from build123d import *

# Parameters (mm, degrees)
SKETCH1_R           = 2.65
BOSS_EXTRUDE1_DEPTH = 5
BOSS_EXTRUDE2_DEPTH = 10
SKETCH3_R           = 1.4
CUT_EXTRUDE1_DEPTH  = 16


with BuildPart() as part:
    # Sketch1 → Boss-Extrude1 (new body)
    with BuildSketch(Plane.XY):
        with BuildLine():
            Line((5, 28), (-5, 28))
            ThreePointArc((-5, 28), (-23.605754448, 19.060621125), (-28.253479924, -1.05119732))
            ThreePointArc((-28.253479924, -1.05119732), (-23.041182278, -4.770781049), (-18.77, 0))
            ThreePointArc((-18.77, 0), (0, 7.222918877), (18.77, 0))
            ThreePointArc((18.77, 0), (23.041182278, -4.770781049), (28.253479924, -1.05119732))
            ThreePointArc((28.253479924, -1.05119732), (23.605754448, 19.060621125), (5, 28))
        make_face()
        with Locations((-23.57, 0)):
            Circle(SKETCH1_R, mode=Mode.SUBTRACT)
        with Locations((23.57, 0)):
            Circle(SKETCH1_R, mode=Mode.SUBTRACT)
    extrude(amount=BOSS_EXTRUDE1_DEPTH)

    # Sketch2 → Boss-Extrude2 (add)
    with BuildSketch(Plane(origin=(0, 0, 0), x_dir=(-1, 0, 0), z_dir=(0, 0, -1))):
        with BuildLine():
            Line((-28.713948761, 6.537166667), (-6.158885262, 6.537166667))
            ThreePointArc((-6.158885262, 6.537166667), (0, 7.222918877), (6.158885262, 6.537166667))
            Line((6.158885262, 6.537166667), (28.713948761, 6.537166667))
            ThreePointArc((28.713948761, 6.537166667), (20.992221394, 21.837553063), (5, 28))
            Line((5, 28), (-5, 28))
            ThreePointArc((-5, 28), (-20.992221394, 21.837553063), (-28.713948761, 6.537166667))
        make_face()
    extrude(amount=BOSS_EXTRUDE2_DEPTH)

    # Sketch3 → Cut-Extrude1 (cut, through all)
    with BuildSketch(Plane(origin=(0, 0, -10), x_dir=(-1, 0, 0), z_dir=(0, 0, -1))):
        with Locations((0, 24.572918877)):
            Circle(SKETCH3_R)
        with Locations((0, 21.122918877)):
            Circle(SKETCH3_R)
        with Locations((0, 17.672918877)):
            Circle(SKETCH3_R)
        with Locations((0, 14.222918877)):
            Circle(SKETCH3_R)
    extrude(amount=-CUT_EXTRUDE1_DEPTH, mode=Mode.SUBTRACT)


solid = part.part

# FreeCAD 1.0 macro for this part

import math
import FreeCAD as App
import Part
import Sketcher
from FreeCAD import Vector

doc = App.newDocument("Part")
params = doc.addObject("Spreadsheet::Sheet", "Params")
for row, (alias, value) in enumerate([
    ("sketch1_radius", "28 mm"),
    ("sketch1_diameter", "5.3 mm"),
    ("sketch1_radius2", "4.8 mm"),
    ("sketch1_width", "10 mm"),
    ("pad1_length", "5 mm"),
    ("sketch2_radius", "28 mm"),
    ("sketch2_width", "10 mm"),
    ("pad2_length", "10 mm"),
    ("sketch3_diameter", "2.8 mm"),
], start=1):
    params.set(f"A{row}", alias)
    params.set(f"B{row}", "=" + value)
    params.setAlias(f"B{row}", alias)

body = doc.addObject("PartDesign::Body", "Body")

sketch1 = body.newObject("Sketcher::SketchObject", "Sketch")
sketch1.AttachmentSupport = (doc.getObject("XY_Plane"), [""])
sketch1.MapMode = "FlatFace"
sketch1.addGeometry([
    Part.LineSegment(Vector(5, 28, 0), Vector(-5, 28, 0)),
    Part.ArcOfCircle(Part.Circle(Vector(-5, 4.2, 0), Vector(0, 0, 1), 23.8), math.radians(90), math.radians(193)),
    Part.ArcOfCircle(Part.Circle(Vector(-23.6, 0, 0), Vector(0, 0, 1), 4.8), math.radians(-167), math.radians(0)),
    Part.ArcOfCircle(Part.Circle(Vector(0, -20.8, 0), Vector(0, 0, 1), 28), math.radians(48), math.radians(132)),
    Part.ArcOfCircle(Part.Circle(Vector(23.6, 0, 0), Vector(0, 0, 1), 4.8), math.radians(180), math.radians(347)),
    Part.ArcOfCircle(Part.Circle(Vector(5, 4.2, 0), Vector(0, 0, 1), 23.8), math.radians(-13), math.radians(90)),
    Part.Circle(Vector(-23.6, 0, 0), Vector(0, 0, 1), 2.6),
    Part.Circle(Vector(23.6, 0, 0), Vector(0, 0, 1), 2.6),
], False)
sketch1.addConstraint([
    Sketcher.Constraint("Tangent", 0, 2, 1, 1),
    Sketcher.Constraint("Tangent", 1, 2, 2, 1),
    Sketcher.Constraint("Coincident", 2, 2, 3, 2),
    Sketcher.Constraint("Coincident", 3, 1, 4, 1),
    Sketcher.Constraint("Tangent", 4, 2, 5, 1),
    Sketcher.Constraint("Tangent", 5, 2, 0, 1),
    Sketcher.Constraint("Horizontal", 0),
    Sketcher.Constraint("Coincident", 6, 3, 2, 3),
    Sketcher.Constraint("Coincident", 7, 3, 4, 3),
    Sketcher.Constraint("Equal", 2, 4),
    Sketcher.Constraint("Equal", 1, 5),
    Sketcher.Constraint("Equal", 6, 7),
    Sketcher.Constraint("Symmetric", 2, 3, 4, 3, -1, 1),
    Sketcher.Constraint("PointOnObject", 2, 3, -1),
    Sketcher.Constraint("PointOnObject", 3, 3, -2),
    Sketcher.Constraint("PointOnObject", 2, 2, -1),
    Sketcher.Constraint("Radius", 3, 28.0),
    Sketcher.Constraint("Diameter", 6, 5.3),
    Sketcher.Constraint("Radius", 2, 4.8),
    Sketcher.Constraint("DistanceX", 0, 2, 0, 1, 10.0),
    Sketcher.Constraint("DistanceY", -1, 1, 0, 2, 28.0),
    Sketcher.Constraint("DistanceX", 2, 3, -1, 1, 23.57),
])
sketch1.setExpression("Constraints[16]", "Params.sketch1_radius")
sketch1.setExpression("Constraints[17]", "Params.sketch1_diameter")
sketch1.setExpression("Constraints[18]", "Params.sketch1_radius2")
sketch1.setExpression("Constraints[19]", "Params.sketch1_width")
pad1 = body.newObject("PartDesign::Pad", "Pad")
pad1.Profile = sketch1
pad1.setExpression("Length", "Params.pad1_length")

sketch2 = body.newObject("Sketcher::SketchObject", "Sketch001")
sketch2.AttachmentSupport = (doc.getObject("XY_Plane"), [""])
sketch2.MapMode = "FlatFace"
sketch2.addGeometry([
    Part.LineSegment(Vector(29, 7, 0), Vector(6, 7, 0)),
    Part.ArcOfCircle(Part.Circle(Vector(0, -21, 0), Vector(0, 0, 1), 28), math.radians(77), math.radians(103)),
    Part.LineSegment(Vector(-6, 7, 0), Vector(-29, 7, 0)),
    Part.ArcOfCircle(Part.Circle(Vector(-5, 4, 0), Vector(0, 0, 1), 24), math.radians(90), math.radians(174)),
    Part.LineSegment(Vector(-5, 28, 0), Vector(5, 28, 0)),
    Part.ArcOfCircle(Part.Circle(Vector(5, 4, 0), Vector(0, 0, 1), 24), math.radians(6), math.radians(90)),
], False)
sketch2.addConstraint([
    Sketcher.Constraint("Coincident", 0, 2, 1, 1),
    Sketcher.Constraint("Coincident", 1, 2, 2, 1),
    Sketcher.Constraint("Coincident", 2, 2, 3, 2),
    Sketcher.Constraint("Tangent", 3, 1, 4, 1),
    Sketcher.Constraint("Tangent", 4, 2, 5, 2),
    Sketcher.Constraint("Coincident", 5, 1, 0, 1),
    Sketcher.Constraint("Horizontal", 0),
    Sketcher.Constraint("Horizontal", 2),
    Sketcher.Constraint("Horizontal", 4),
    Sketcher.Constraint("Equal", 3, 5),
    Sketcher.Constraint("Symmetric", 0, 2, 1, 2, -2),
    Sketcher.Constraint("Equal", 0, 2),
    Sketcher.Constraint("Radius", 1, 28.0),
    Sketcher.Constraint("DistanceX", 4, 1, 4, 2, 10.0),
    Sketcher.Constraint("DistanceY", -1, 1, 3, 1, 28.0),
    Sketcher.Constraint("Radius", 3, 23.832002),
    Sketcher.Constraint("DistanceX", 0, 2, 0, 1, 22.555063),
    Sketcher.Constraint("DistanceY", 1, 3, -1, 1, 20.777081),
])
sketch2.setExpression("Constraints[12]", "Params.sketch2_radius")
sketch2.setExpression("Constraints[13]", "Params.sketch2_width")
pad2 = body.newObject("PartDesign::Pad", "Pad001")
pad2.Profile = sketch2
pad2.setExpression("Length", "Params.pad2_length")
pad2.Reversed = True

sketch3 = body.newObject("Sketcher::SketchObject", "Sketch002")
sketch3.AttachmentSupport = (doc.getObject("XY_Plane"), [""])
sketch3.MapMode = "FlatFace"
sketch3.AttachmentOffset = App.Placement(Vector(0, 0, -10), App.Rotation())
sketch3.addGeometry([
    Part.Circle(Vector(0, 24.6, 0), Vector(0, 0, 1), 1.4),
    Part.Circle(Vector(0, 21.1, 0), Vector(0, 0, 1), 1.4),
    Part.Circle(Vector(0, 17.7, 0), Vector(0, 0, 1), 1.4),
    Part.Circle(Vector(0, 14.2, 0), Vector(0, 0, 1), 1.4),
], False)
sketch3.addConstraint([
    Sketcher.Constraint("Equal", 0, 1),
    Sketcher.Constraint("Equal", 1, 2),
    Sketcher.Constraint("Equal", 2, 3),
    Sketcher.Constraint("PointOnObject", 0, 3, -2),
    Sketcher.Constraint("PointOnObject", 1, 3, -2),
    Sketcher.Constraint("PointOnObject", 2, 3, -2),
    Sketcher.Constraint("PointOnObject", 3, 3, -2),
    Sketcher.Constraint("Diameter", 0, 2.8),
    Sketcher.Constraint("DistanceY", 2, 3, 0, 3, 6.9),
    Sketcher.Constraint("DistanceY", 3, 3, 1, 3, 6.9),
    Sketcher.Constraint("DistanceY", 1, 3, 0, 3, 3.45),
    Sketcher.Constraint("DistanceY", -1, 1, 0, 3, 24.572919),
])
sketch3.setExpression("Constraints[7]", "Params.sketch3_diameter")
pocket1 = body.newObject("PartDesign::Pocket", "Pocket")
pocket1.Profile = sketch3
pocket1.Type = "ThroughAll"
pocket1.Reversed = True

doc.recompute()
